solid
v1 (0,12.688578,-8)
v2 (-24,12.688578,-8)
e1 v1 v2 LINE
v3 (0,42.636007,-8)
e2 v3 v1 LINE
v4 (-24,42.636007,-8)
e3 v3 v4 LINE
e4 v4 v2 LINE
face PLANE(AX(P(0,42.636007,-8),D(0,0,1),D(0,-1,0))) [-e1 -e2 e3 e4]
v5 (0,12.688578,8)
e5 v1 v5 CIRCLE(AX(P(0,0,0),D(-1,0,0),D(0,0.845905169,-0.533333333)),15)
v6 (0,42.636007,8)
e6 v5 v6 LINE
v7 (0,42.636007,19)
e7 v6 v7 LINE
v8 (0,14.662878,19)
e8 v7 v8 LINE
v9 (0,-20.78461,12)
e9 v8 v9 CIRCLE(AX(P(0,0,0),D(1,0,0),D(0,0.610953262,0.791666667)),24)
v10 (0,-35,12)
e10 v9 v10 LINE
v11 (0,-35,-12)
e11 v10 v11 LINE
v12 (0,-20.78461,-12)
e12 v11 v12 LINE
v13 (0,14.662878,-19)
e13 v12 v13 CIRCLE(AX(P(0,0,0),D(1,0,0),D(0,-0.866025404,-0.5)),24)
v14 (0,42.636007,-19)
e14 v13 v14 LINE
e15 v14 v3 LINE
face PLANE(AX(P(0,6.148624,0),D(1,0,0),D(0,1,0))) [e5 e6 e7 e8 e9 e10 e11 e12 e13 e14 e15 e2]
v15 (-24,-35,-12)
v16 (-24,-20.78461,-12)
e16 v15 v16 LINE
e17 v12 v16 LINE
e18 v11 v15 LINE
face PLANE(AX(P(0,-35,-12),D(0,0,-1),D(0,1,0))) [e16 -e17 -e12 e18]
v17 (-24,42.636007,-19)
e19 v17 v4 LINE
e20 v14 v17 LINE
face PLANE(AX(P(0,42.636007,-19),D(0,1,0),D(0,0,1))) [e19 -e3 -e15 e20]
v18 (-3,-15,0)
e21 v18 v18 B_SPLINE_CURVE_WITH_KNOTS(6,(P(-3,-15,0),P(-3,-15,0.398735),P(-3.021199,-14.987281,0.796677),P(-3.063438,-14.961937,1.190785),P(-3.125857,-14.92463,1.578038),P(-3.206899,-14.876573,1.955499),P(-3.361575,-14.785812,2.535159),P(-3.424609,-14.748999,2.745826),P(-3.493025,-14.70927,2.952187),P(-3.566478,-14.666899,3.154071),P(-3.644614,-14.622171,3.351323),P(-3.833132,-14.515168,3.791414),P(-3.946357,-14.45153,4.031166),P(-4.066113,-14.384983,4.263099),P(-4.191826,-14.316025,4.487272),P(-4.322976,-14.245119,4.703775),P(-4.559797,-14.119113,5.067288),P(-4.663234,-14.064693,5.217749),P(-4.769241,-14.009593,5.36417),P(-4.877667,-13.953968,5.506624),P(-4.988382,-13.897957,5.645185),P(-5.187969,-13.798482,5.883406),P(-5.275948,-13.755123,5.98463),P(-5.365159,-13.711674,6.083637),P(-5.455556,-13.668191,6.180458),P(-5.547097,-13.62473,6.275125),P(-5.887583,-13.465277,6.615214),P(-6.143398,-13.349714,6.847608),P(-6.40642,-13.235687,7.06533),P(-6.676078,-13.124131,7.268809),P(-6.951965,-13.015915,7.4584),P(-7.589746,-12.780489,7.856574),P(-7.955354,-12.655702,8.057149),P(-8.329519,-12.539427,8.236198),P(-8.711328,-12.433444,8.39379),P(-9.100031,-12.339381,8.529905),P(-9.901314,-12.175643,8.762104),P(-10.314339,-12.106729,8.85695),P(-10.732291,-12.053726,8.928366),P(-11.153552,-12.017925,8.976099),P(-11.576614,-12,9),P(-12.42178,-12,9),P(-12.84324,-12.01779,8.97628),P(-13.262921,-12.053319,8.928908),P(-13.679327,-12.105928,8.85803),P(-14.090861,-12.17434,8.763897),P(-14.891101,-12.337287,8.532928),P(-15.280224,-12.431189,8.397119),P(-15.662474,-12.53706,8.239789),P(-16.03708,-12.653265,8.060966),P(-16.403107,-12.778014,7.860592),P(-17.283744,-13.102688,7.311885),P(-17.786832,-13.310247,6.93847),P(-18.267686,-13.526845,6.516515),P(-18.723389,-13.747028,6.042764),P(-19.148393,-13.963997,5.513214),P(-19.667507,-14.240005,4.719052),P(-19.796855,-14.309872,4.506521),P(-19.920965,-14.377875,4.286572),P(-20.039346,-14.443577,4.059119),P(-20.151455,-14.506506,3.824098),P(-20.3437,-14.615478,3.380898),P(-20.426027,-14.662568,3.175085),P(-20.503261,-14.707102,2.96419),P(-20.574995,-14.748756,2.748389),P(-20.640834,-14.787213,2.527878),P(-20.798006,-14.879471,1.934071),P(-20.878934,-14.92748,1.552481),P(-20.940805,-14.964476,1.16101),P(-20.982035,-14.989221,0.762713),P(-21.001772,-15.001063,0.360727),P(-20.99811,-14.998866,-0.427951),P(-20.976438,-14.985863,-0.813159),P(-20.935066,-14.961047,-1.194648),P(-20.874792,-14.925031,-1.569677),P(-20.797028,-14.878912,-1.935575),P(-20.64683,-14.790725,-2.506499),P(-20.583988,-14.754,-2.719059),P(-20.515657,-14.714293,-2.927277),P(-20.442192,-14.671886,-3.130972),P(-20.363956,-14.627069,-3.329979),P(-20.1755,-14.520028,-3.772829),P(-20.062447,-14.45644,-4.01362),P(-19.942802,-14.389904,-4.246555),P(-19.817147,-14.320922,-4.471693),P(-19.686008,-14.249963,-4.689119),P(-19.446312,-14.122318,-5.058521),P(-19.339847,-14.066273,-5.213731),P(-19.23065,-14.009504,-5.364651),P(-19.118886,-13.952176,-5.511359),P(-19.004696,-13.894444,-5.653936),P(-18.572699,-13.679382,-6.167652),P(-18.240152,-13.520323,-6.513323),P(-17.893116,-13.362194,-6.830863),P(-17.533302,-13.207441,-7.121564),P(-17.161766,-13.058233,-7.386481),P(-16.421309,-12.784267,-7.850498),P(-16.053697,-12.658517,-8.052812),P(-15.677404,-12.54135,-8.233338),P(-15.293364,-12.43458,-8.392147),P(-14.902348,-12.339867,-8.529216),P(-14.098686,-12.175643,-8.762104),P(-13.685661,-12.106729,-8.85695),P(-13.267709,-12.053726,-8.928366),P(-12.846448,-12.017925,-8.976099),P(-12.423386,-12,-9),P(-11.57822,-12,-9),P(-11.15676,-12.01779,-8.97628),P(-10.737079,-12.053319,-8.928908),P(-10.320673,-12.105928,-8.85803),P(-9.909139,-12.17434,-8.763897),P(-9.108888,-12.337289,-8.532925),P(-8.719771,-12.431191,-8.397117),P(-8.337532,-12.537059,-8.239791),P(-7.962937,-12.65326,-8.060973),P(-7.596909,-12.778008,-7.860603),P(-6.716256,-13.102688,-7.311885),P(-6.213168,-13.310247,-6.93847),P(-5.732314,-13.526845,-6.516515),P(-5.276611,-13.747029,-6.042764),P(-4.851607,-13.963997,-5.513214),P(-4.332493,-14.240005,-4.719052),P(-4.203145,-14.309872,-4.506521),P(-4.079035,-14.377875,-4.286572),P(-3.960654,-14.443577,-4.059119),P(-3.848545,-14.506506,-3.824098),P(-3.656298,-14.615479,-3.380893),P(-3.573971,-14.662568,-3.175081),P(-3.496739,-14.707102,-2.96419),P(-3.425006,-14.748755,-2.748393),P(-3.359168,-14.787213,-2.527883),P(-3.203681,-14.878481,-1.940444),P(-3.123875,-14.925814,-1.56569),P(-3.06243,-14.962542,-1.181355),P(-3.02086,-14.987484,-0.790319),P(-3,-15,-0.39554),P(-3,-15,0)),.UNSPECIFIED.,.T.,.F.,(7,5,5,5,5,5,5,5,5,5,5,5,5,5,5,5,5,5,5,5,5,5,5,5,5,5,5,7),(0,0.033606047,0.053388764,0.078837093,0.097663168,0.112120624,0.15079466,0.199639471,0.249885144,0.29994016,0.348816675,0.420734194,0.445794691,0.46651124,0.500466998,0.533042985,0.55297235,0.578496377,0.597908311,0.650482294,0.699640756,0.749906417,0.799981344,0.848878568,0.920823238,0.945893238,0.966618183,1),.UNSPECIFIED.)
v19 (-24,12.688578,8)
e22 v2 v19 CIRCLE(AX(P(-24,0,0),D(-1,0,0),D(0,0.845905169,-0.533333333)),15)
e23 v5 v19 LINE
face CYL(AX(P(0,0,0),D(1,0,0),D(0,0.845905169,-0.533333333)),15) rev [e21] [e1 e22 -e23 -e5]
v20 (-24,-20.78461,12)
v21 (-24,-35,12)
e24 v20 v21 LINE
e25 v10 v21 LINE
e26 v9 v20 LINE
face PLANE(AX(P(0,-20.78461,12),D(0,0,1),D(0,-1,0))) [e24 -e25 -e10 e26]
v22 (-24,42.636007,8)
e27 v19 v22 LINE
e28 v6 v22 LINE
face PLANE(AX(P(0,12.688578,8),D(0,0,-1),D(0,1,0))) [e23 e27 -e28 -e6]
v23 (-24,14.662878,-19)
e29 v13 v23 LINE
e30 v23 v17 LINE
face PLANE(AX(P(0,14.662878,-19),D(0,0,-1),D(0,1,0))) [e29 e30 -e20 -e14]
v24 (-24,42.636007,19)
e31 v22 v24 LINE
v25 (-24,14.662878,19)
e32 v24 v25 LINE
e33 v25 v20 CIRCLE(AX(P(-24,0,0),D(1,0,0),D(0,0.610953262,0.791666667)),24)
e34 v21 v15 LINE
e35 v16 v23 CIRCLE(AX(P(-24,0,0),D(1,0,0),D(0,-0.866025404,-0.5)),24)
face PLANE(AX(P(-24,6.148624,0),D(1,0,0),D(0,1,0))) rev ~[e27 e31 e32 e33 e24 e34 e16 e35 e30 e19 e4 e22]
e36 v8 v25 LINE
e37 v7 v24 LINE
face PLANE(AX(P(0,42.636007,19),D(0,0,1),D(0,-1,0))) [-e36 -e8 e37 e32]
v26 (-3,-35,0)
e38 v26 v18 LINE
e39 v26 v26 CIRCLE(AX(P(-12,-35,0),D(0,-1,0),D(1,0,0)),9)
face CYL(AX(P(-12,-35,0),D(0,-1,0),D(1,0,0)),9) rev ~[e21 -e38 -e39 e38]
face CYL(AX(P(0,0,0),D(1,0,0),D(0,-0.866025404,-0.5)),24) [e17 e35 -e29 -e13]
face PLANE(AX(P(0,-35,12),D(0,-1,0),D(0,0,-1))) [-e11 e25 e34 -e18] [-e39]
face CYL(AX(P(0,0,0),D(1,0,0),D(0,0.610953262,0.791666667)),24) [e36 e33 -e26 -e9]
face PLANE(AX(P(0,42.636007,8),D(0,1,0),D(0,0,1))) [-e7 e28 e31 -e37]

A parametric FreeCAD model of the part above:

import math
import FreeCAD as App
import Part
import Sketcher

doc = App.newDocument("Part")
body = doc.addObject("PartDesign::Body", "Body")

# Sketch on YZ plane
sketch1 = doc.addObject("Sketcher::SketchObject", "Sketch")
body.addObject(sketch1)
sketch1.AttachmentSupport = (doc.YZ_Plane, [""])
sketch1.MapMode = "FlatFace"
sketch1.addGeometry([
    Part.LineSegment(App.Vector(42.636007, 19, 0), App.Vector(14.662878, 19, 0)),  # 0
    Part.ArcOfCircle(Part.Circle(App.Vector(0, 0, 0), App.Vector(0, 0, 1), 24), math.radians(52.341538), math.radians(150)),  # 1
    Part.LineSegment(App.Vector(-20.78461, 12, 0), App.Vector(-35, 12, 0)),  # 2
    Part.LineSegment(App.Vector(-35, 12, 0), App.Vector(-35, -12, 0)),  # 3
    Part.LineSegment(App.Vector(-35, -12, 0), App.Vector(-20.78461, -12, 0)),  # 4
    Part.ArcOfCircle(Part.Circle(App.Vector(0, 0, 0), App.Vector(0, 0, 1), 24), math.radians(-150), math.radians(-52.341538)),  # 5
    Part.LineSegment(App.Vector(14.662878, -19, 0), App.Vector(42.636007, -19, 0)),  # 6
    Part.LineSegment(App.Vector(42.636007, -19, 0), App.Vector(42.636007, -8, 0)),  # 7
    Part.LineSegment(App.Vector(42.636007, -8, 0), App.Vector(12.688578, -8, 0)),  # 8
    Part.ArcOfCircle(Part.Circle(App.Vector(0, 0, 0), App.Vector(0, 0, 1), 15), math.radians(32.230953), math.radians(327.769047)),  # 9
    Part.LineSegment(App.Vector(12.688578, 8, 0), App.Vector(42.636007, 8, 0)),  # 10
    Part.LineSegment(App.Vector(42.636007, 8, 0), App.Vector(42.636007, 19, 0)),  # 11
], False)
sketch1.addConstraint([
    Sketcher.Constraint("Coincident", 0, 2, 1, 1),
    Sketcher.Constraint("Coincident", 1, 2, 2, 1),
    Sketcher.Constraint("Coincident", 2, 2, 3, 1),
    Sketcher.Constraint("Coincident", 3, 2, 4, 1),
    Sketcher.Constraint("Coincident", 4, 2, 5, 1),
    Sketcher.Constraint("Coincident", 5, 2, 6, 1),
    Sketcher.Constraint("Coincident", 6, 2, 7, 1),
    Sketcher.Constraint("Coincident", 7, 2, 8, 1),
    Sketcher.Constraint("Coincident", 8, 2, 9, 2),
    Sketcher.Constraint("Coincident", 9, 1, 10, 1),
    Sketcher.Constraint("Coincident", 10, 2, 11, 1),
    Sketcher.Constraint("Coincident", 11, 2, 0, 1),
    Sketcher.Constraint("Horizontal", 0),
    Sketcher.Constraint("Horizontal", 2),
    Sketcher.Constraint("Vertical", 3),
    Sketcher.Constraint("Horizontal", 4),
    Sketcher.Constraint("Horizontal", 6),
    Sketcher.Constraint("Vertical", 7),
    Sketcher.Constraint("Horizontal", 8),
    Sketcher.Constraint("Horizontal", 10),
    Sketcher.Constraint("Vertical", 11),
    Sketcher.Constraint("Coincident", 1, 3, -1, 1),
    Sketcher.Constraint("Coincident", 5, 3, -1, 1),
    Sketcher.Constraint("Coincident", 9, 3, -1, 1),
    Sketcher.Constraint("Equal", 1, 5),
    Sketcher.Constraint("Symmetric", 7, 2, 10, 2, -1),
    Sketcher.Constraint("Vertical", 1, 2, 4, 2),
    Sketcher.Constraint("Vertical", 0, 2, 5, 2),
    Sketcher.Constraint("Radius", 1, 24.0),
    Sketcher.Constraint("Radius", 9, 15.0),
    Sketcher.Constraint("DistanceY", 3, 2, 3, 1, 24.0),
    Sketcher.Constraint("DistanceY", 7, 1, 7, 2, 11.0),
    Sketcher.Constraint("DistanceY", -1, 1, 0, 2, 19.0),
    Sketcher.Constraint("DistanceX", 2, 2, -1, 1, 35.0),
    Sketcher.Constraint("DistanceX", 0, 2, 0, 1, 27.973129),
])
pad1 = doc.addObject("PartDesign::Pad", "Pad")
body.addObject(pad1)
pad1.Profile = sketch1
pad1.Length = 24
pad1.Reversed = True

# Sketch on XZ plane
sketch2 = doc.addObject("Sketcher::SketchObject", "Sketch001")
body.addObject(sketch2)
sketch2.AttachmentSupport = (doc.XZ_Plane, [""])
sketch2.MapMode = "FlatFace"
sketch2.AttachmentOffset = App.Placement(App.Vector(0, 0, 35), App.Rotation())
sketch2.addGeometry(Part.Circle(App.Vector(-12, 0, 0), App.Vector(0, 0, 1), 9), False)
sketch2.addConstraint([
    Sketcher.Constraint("PointOnObject", 0, 3, -1),
    Sketcher.Constraint("Diameter", 0, 18.0),
    Sketcher.Constraint("DistanceX", 0, 3, -1, 1, 12.0),
])
pocket1 = doc.addObject("PartDesign::Pocket", "Pocket")
body.addObject(pocket1)
pocket1.Profile = sketch2
pocket1.Length = 24

doc.recompute()
